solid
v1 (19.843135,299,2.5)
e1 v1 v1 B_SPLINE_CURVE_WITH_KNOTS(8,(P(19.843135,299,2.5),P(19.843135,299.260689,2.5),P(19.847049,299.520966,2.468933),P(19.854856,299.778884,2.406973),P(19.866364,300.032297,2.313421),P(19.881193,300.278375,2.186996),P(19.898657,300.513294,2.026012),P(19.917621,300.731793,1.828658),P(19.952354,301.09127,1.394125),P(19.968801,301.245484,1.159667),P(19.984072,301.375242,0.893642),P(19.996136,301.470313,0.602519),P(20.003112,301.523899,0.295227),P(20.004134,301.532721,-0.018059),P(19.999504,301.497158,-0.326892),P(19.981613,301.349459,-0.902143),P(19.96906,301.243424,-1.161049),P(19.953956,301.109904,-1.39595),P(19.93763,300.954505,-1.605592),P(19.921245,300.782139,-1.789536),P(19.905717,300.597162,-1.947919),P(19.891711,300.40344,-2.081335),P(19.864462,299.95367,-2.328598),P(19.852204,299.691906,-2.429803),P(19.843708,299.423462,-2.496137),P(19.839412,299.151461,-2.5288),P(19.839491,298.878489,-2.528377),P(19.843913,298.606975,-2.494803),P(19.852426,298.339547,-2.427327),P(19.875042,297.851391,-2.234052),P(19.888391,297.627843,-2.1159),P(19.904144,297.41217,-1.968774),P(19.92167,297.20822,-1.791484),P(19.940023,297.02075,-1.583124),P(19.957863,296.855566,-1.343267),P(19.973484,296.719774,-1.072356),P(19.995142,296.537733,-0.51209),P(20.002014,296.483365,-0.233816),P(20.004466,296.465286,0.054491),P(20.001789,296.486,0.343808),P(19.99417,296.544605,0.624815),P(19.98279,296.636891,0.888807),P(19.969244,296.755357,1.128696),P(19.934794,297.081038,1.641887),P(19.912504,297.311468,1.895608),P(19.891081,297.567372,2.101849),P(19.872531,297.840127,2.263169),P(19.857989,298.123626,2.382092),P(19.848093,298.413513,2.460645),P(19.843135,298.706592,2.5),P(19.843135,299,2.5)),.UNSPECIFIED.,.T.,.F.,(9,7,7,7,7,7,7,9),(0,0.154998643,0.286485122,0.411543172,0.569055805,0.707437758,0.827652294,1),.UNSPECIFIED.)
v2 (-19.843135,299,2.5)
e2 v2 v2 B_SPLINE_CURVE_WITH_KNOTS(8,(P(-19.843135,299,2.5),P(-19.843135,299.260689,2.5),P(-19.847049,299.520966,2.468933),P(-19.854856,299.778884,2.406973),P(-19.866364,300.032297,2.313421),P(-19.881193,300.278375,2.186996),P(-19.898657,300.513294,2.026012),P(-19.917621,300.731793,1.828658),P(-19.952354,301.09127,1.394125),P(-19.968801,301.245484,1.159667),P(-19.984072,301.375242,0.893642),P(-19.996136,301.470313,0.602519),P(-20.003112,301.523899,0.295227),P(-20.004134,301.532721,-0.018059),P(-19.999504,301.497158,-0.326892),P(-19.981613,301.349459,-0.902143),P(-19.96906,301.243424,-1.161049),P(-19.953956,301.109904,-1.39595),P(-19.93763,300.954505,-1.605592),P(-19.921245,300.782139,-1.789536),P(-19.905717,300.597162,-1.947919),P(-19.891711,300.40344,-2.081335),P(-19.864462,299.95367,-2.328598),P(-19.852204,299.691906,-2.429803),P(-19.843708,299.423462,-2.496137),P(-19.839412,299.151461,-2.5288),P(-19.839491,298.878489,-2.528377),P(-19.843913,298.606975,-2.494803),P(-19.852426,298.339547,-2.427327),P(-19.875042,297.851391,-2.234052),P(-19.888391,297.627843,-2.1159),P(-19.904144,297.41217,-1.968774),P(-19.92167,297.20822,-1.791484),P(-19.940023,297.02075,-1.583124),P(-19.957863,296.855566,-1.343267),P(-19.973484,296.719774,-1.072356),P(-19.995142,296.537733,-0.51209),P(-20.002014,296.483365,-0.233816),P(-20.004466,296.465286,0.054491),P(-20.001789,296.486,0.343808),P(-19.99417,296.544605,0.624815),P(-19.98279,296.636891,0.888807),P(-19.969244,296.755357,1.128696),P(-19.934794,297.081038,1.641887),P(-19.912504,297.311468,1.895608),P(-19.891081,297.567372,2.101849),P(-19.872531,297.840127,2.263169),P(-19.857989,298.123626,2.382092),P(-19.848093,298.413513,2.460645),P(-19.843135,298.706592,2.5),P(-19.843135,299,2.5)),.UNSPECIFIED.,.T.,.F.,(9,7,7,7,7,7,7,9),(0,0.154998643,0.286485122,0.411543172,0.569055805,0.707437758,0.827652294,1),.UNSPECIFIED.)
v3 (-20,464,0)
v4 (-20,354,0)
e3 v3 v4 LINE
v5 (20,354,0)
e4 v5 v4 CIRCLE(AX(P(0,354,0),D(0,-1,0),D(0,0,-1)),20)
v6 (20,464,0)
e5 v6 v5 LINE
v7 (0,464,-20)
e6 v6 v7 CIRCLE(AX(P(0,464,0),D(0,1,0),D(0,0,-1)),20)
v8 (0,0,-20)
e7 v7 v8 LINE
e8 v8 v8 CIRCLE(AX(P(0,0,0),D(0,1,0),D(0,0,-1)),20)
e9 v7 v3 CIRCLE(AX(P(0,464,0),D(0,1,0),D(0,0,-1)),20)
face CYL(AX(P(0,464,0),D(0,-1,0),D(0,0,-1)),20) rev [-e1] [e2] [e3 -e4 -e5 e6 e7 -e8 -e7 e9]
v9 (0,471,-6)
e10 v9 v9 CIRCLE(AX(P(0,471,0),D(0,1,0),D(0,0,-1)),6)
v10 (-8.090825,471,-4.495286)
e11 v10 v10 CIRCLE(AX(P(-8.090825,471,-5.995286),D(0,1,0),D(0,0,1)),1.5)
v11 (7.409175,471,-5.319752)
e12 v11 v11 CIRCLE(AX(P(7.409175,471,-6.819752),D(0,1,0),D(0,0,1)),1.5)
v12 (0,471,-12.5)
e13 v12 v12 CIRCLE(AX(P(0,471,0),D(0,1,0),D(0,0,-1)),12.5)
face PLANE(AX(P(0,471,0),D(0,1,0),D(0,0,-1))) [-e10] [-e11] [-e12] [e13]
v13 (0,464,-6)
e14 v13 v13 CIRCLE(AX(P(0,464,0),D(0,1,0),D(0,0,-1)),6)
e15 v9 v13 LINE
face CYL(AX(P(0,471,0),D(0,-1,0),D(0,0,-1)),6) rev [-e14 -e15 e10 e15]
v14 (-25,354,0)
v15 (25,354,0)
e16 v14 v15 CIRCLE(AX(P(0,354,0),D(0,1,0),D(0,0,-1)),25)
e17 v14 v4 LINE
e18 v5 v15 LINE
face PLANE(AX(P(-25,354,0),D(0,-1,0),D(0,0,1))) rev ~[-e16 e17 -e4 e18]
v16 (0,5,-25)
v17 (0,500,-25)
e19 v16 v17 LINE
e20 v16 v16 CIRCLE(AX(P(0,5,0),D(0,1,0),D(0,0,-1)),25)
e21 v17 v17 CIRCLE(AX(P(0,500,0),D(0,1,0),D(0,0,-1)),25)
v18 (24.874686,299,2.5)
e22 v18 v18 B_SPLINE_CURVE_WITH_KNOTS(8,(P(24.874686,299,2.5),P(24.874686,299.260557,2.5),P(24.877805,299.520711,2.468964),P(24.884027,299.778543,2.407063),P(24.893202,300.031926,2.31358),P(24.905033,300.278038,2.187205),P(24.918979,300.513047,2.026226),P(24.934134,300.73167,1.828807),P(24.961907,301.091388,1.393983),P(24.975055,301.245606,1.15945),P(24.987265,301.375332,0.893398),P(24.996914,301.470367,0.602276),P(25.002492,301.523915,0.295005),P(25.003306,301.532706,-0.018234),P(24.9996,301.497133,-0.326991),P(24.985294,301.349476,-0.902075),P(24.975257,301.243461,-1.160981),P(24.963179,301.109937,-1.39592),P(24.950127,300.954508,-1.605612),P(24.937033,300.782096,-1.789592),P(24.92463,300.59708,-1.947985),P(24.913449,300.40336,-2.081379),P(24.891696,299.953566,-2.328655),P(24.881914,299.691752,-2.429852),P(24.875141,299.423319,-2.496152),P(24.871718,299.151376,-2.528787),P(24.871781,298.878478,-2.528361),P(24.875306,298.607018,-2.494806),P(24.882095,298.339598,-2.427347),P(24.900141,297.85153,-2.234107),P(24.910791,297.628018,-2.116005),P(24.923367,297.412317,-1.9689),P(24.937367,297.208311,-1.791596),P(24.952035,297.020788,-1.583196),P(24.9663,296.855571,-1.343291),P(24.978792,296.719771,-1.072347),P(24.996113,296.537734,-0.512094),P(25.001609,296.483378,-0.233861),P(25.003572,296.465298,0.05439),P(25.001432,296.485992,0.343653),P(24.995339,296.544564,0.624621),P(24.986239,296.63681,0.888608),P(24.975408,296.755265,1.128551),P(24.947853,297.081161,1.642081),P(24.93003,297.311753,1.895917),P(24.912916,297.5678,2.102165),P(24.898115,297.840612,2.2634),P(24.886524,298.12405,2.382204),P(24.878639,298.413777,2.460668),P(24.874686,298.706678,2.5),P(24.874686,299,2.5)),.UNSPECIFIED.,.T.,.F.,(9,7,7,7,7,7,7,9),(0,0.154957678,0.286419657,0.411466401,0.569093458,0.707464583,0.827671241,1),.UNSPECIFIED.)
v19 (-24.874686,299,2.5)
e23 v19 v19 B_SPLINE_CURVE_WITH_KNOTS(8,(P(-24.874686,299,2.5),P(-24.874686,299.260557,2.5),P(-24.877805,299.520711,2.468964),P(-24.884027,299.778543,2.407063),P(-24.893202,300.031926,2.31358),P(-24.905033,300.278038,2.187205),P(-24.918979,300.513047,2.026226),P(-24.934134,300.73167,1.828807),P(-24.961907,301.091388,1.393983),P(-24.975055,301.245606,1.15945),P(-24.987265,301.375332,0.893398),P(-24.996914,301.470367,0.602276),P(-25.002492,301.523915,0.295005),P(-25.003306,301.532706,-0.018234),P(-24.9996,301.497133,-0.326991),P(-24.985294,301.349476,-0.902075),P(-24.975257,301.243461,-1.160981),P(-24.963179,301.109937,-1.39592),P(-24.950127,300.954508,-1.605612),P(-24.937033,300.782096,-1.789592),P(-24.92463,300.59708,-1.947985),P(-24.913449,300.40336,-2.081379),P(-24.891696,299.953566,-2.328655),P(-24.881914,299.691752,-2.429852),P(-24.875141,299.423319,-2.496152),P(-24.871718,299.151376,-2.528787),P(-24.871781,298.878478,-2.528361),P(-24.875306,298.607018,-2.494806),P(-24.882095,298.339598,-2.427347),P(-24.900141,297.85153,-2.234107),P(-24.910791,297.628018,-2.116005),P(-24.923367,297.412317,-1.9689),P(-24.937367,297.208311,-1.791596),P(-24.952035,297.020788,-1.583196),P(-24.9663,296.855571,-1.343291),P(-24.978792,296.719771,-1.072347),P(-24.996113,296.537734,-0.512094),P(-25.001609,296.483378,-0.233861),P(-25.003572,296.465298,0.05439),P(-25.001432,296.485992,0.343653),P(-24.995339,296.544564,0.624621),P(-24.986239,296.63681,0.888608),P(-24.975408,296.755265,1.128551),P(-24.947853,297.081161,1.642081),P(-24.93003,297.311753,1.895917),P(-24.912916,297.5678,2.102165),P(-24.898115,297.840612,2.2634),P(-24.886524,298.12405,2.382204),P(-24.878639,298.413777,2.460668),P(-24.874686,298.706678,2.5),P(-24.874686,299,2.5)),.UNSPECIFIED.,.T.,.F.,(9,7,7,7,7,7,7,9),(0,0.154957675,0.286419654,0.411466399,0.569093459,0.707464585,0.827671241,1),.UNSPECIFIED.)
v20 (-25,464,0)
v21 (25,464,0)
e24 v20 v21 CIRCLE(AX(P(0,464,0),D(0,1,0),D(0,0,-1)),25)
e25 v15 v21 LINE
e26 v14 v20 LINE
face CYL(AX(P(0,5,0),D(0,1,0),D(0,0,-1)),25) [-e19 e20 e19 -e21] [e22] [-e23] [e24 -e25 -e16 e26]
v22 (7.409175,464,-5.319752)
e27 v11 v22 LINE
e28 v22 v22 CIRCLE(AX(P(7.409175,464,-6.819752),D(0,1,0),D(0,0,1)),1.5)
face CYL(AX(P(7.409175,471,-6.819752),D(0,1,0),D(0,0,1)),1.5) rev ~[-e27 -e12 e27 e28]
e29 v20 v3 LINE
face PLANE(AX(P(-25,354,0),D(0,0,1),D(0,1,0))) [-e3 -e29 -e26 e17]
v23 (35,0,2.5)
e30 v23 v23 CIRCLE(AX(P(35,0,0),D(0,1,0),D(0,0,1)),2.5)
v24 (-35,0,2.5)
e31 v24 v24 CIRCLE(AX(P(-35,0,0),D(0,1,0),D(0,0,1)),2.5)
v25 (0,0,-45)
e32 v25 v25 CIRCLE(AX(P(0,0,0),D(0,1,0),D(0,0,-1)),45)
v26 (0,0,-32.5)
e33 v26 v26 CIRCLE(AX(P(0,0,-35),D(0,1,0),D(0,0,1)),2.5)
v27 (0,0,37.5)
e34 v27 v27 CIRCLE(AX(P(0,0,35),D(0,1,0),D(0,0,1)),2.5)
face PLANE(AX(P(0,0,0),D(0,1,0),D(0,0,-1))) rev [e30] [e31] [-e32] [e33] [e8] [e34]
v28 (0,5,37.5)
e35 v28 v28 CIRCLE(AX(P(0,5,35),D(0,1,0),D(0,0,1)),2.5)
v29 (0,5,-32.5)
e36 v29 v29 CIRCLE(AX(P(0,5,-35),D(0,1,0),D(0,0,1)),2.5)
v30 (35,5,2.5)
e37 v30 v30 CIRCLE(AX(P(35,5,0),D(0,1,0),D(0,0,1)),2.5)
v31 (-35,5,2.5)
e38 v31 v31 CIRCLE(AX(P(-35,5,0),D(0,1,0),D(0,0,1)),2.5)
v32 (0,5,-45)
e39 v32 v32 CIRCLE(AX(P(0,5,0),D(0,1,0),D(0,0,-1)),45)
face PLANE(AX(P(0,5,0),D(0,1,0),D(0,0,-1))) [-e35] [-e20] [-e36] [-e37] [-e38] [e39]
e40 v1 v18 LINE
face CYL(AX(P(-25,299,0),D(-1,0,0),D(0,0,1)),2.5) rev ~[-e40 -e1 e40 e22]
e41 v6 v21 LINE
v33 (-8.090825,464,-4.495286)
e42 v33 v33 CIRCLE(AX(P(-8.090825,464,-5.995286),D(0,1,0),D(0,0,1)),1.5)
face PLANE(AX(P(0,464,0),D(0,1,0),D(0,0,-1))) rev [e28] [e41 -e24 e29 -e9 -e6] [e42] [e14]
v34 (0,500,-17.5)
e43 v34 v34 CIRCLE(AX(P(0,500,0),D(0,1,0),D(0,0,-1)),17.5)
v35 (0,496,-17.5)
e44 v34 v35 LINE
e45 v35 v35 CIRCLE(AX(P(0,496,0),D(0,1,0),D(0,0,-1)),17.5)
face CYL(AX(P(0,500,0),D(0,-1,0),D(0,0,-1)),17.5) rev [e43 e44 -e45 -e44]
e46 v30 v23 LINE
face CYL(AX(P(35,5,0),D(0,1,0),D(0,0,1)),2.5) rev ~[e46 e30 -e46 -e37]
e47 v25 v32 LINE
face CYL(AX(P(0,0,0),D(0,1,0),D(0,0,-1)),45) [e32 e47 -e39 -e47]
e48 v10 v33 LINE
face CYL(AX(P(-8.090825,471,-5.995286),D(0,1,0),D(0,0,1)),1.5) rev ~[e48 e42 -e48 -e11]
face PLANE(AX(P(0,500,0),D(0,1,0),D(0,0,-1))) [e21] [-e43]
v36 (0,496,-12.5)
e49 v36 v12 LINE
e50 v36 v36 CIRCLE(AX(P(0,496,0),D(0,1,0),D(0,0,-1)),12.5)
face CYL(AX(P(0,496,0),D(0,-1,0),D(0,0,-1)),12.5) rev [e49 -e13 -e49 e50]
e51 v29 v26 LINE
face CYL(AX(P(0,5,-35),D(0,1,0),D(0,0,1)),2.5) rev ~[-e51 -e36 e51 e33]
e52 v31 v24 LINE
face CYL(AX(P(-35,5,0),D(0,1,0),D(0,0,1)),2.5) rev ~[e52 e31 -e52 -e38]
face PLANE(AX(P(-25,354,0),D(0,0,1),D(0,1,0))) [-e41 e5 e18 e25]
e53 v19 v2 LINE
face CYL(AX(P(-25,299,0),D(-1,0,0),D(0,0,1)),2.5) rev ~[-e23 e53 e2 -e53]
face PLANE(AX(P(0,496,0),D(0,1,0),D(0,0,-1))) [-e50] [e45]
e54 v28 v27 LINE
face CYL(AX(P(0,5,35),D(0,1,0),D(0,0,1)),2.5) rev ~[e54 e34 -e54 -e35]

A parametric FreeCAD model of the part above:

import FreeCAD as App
import Part
import Sketcher
Q = App.Units.Quantity

doc = App.newDocument("Part")
params = doc.addObject("Spreadsheet::Sheet", "Params")
for row, (alias, value) in enumerate([
    ("sketch1_width", "25 mm"),
    ("sketch1_width2", "20 mm"),
    ("sketch1_width3", "5 mm"),
    ("sketch1_width4", "14 mm"),
    ("sketch1_height", "495 mm"),
    ("revolution_angle", "360 deg"),
    ("sketch2_diameter", "5 mm"),
    ("sketch2_width", "110 mm"),
    ("sketch2_height", "30 mm"),
    ("sketch3_diameter", "3 mm"),
    ("sketch4_diameter", "5 mm"),
    ("sketch5_diameter", "5 mm"),
    ("sketch6_diameter", "5 mm"),
    ("sketch7_diameter", "5 mm"),
], start=1):
    params.set(f"A{row}", alias)
    params.set(f"B{row}", "=" + value)
    params.setAlias(f"B{row}", alias)

body = doc.addObject("PartDesign::Body", "Body")

# Sketch on XY plane
sketch1 = body.newObject("Sketcher::SketchObject", "Sketch")
sketch1.AttachmentSupport = (doc.getObject("XY_Plane"), [""])
sketch1.MapMode = "FlatFace"
sketch1.addGeometry([
    Part.LineSegment(App.Vector(20, 0, 0), App.Vector(45, 0, 0)),  # 0
    Part.LineSegment(App.Vector(45, 0, 0), App.Vector(45, 5, 0)),  # 1
    Part.LineSegment(App.Vector(45, 5, 0), App.Vector(25, 5, 0)),  # 2
    Part.LineSegment(App.Vector(25, 5, 0), App.Vector(25, 500, 0)),  # 3
    Part.LineSegment(App.Vector(25, 500, 0), App.Vector(17.5, 500, 0)),  # 4
    Part.LineSegment(App.Vector(17.5, 500, 0), App.Vector(17.5, 496, 0)),  # 5
    Part.LineSegment(App.Vector(17.5, 496, 0), App.Vector(12.5, 496, 0)),  # 6
    Part.LineSegment(App.Vector(12.5, 496, 0), App.Vector(12.5, 471, 0)),  # 7
    Part.LineSegment(App.Vector(12.5, 471, 0), App.Vector(6, 471, 0)),  # 8
    Part.LineSegment(App.Vector(6, 471, 0), App.Vector(6, 464, 0)),  # 9
    Part.LineSegment(App.Vector(6, 464, 0), App.Vector(20, 464, 0)),  # 10
    Part.LineSegment(App.Vector(20, 464, 0), App.Vector(20, 0, 0)),  # 11
], False)
sketch1.addConstraint([
    Sketcher.Constraint("Coincident", 0, 2, 1, 1),
    Sketcher.Constraint("Coincident", 1, 2, 2, 1),
    Sketcher.Constraint("Coincident", 2, 2, 3, 1),
    Sketcher.Constraint("Coincident", 3, 2, 4, 1),
    Sketcher.Constraint("Coincident", 4, 2, 5, 1),
    Sketcher.Constraint("Coincident", 5, 2, 6, 1),
    Sketcher.Constraint("Coincident", 6, 2, 7, 1),
    Sketcher.Constraint("Coincident", 7, 2, 8, 1),
    Sketcher.Constraint("Coincident", 8, 2, 9, 1),
    Sketcher.Constraint("Coincident", 9, 2, 10, 1),
    Sketcher.Constraint("Coincident", 10, 2, 11, 1),
    Sketcher.Constraint("Coincident", 11, 2, 0, 1),
    Sketcher.Constraint("Horizontal", 0),
    Sketcher.Constraint("Vertical", 1),
    Sketcher.Constraint("Horizontal", 2),
    Sketcher.Constraint("Vertical", 3),
    Sketcher.Constraint("Horizontal", 4),
    Sketcher.Constraint("Vertical", 5),
    Sketcher.Constraint("Horizontal", 6),
    Sketcher.Constraint("Vertical", 7),
    Sketcher.Constraint("Horizontal", 8),
    Sketcher.Constraint("Vertical", 9),
    Sketcher.Constraint("Horizontal", 10),
    Sketcher.Constraint("Vertical", 11),
    Sketcher.Constraint("PointOnObject", 0, 2, -1),
    Sketcher.Constraint("Equal", 6, 1),
    Sketcher.Constraint("Equal", 0, 7),
    Sketcher.Constraint("DistanceX", 0, 1, 0, 2, Q("25 mm")),
    Sketcher.Constraint("DistanceX", 2, 2, 2, 1, Q("20 mm")),
    Sketcher.Constraint("DistanceX", 6, 2, 6, 1, Q("5 mm")),
    Sketcher.Constraint("DistanceX", 10, 1, 10, 2, Q("14 mm")),
    Sketcher.Constraint("DistanceY", 3, 1, 3, 2, Q("495 mm")),
    Sketcher.Constraint("DistanceY", 5, 2, 5, 1, Q("4 mm")),
    Sketcher.Constraint("DistanceY", 9, 2, 9, 1, Q("7 mm")),
    Sketcher.Constraint("DistanceX", 4, 2, 4, 1, Q("7.5 mm")),
    Sketcher.Constraint("DistanceX", -1, 1, 0, 2, Q("45 mm")),
])
sketch1.setExpression("Constraints[27]", "Params.sketch1_width")
sketch1.setExpression("Constraints[28]", "Params.sketch1_width2")
sketch1.setExpression("Constraints[29]", "Params.sketch1_width3")
sketch1.setExpression("Constraints[30]", "Params.sketch1_width4")
sketch1.setExpression("Constraints[31]", "Params.sketch1_height")
revolution = body.newObject("PartDesign::Revolution", "Revolution")
revolution.Profile = sketch1
revolution.ReferenceAxis = (sketch1, ["V_Axis"])
revolution.setExpression("Angle", "Params.revolution_angle")

# Sketch on YZ plane
sketch2 = body.newObject("Sketcher::SketchObject", "Sketch001")
sketch2.AttachmentSupport = (doc.getObject("YZ_Plane"), [""])
sketch2.MapMode = "FlatFace"
sketch2.AttachmentOffset = App.Placement(App.Vector(0, 0, -25), App.Rotation())
sketch2.addGeometry([
    Part.Circle(App.Vector(299, 0, 0), App.Vector(0, 0, 1), 2.5),  # 0
    Part.LineSegment(App.Vector(464, 0, 0), App.Vector(354, 0, 0)),  # 1
    Part.LineSegment(App.Vector(354, 0, 0), App.Vector(354, 30, 0)),  # 2
    Part.LineSegment(App.Vector(354, 30, 0), App.Vector(464, 30, 0)),  # 3
    Part.LineSegment(App.Vector(464, 30, 0), App.Vector(464, 0, 0)),  # 4
], False)
sketch2.addConstraint([
    Sketcher.Constraint("Coincident", 1, 2, 2, 1),
    Sketcher.Constraint("Coincident", 2, 2, 3, 1),
    Sketcher.Constraint("Coincident", 3, 2, 4, 1),
    Sketcher.Constraint("Coincident", 4, 2, 1, 1),
    Sketcher.Constraint("Horizontal", 1),
    Sketcher.Constraint("Vertical", 2),
    Sketcher.Constraint("Horizontal", 3),
    Sketcher.Constraint("Vertical", 4),
    Sketcher.Constraint("PointOnObject", 0, 3, -1),
    Sketcher.Constraint("PointOnObject", 1, 2, -1),
    Sketcher.Constraint("Diameter", 0, Q("5 mm")),
    Sketcher.Constraint("DistanceX", 1, 2, 1, 1, Q("110 mm")),
    Sketcher.Constraint("DistanceY", 2, 1, 2, 2, Q("30 mm")),
    Sketcher.Constraint("DistanceX", -1, 1, 0, 3, Q("299 mm")),
    Sketcher.Constraint("DistanceX", -1, 1, 1, 2, Q("354 mm")),
])
sketch2.setExpression("Constraints[10]", "Params.sketch2_diameter")
sketch2.setExpression("Constraints[11]", "Params.sketch2_width")
sketch2.setExpression("Constraints[12]", "Params.sketch2_height")
pocket1 = body.newObject("PartDesign::Pocket", "Pocket")
pocket1.Profile = sketch2
pocket1.Type = "ThroughAll"
pocket1.Reversed = True

# Sketch on XZ plane
sketch3 = body.newObject("Sketcher::SketchObject", "Sketch002")
sketch3.AttachmentSupport = (doc.getObject("XZ_Plane"), [""])
sketch3.MapMode = "FlatFace"
sketch3.AttachmentOffset = App.Placement(App.Vector(0, 0, -471), App.Rotation())
sketch3.addGeometry([
    Part.Circle(App.Vector(-8.1, -6, 0), App.Vector(0, 0, 1), 1.5),
    Part.Circle(App.Vector(7.4, -6.8, 0), App.Vector(0, 0, 1), 1.5),
], False)
sketch3.addConstraint([
    Sketcher.Constraint("Equal", 0, 1),
    Sketcher.Constraint("Diameter", 0, Q("3 mm")),
    Sketcher.Constraint("DistanceX", 0, 3, 1, 3, Q("15.5 mm")),
    Sketcher.Constraint("DistanceX", 0, 3, -1, 1, Q("8.090825 mm")),
    Sketcher.Constraint("DistanceY", 0, 3, -1, 1, Q("5.995286 mm")),
    Sketcher.Constraint("DistanceY", 1, 3, -1, 1, Q("6.819752 mm")),
])
sketch3.setExpression("Constraints[1]", "Params.sketch3_diameter")
pocket2 = body.newObject("PartDesign::Pocket", "Pocket001")
pocket2.Profile = sketch3
pocket2.Type = "ThroughAll"
pocket2.Reversed = True

# Sketch on XZ plane
sketch4 = body.newObject("Sketcher::SketchObject", "Sketch003")
sketch4.AttachmentSupport = (doc.getObject("XZ_Plane"), [""])
sketch4.MapMode = "FlatFace"
sketch4.AttachmentOffset = App.Placement(App.Vector(0, 0, -5), App.Rotation())
sketch4.addGeometry(Part.Circle(App.Vector(0, -35, 0), App.Vector(0, 0, 1), 2.5), False)
sketch4.addConstraint([
    Sketcher.Constraint("PointOnObject", 0, 3, -2),
    Sketcher.Constraint("Diameter", 0, Q("5 mm")),
    Sketcher.Constraint("DistanceY", 0, 3, -1, 1, Q("35 mm")),
])
sketch4.setExpression("Constraints[1]", "Params.sketch4_diameter")
pocket3 = body.newObject("PartDesign::Pocket", "Pocket002")
pocket3.Profile = sketch4
pocket3.Type = "UpToFirst"
pocket3.Reversed = True

# Sketch on XZ plane
sketch5 = body.newObject("Sketcher::SketchObject", "Sketch004")
sketch5.AttachmentSupport = (doc.getObject("XZ_Plane"), [""])
sketch5.MapMode = "FlatFace"
sketch5.AttachmentOffset = App.Placement(App.Vector(0, 0, -5), App.Rotation())
sketch5.addGeometry(Part.Circle(App.Vector(35, 0, 0), App.Vector(0, 0, 1), 2.5), False)
sketch5.addConstraint([
    Sketcher.Constraint("PointOnObject", 0, 3, -1),
    Sketcher.Constraint("Diameter", 0, Q("5 mm")),
    Sketcher.Constraint("DistanceX", -1, 1, 0, 3, Q("35 mm")),
])
sketch5.setExpression("Constraints[1]", "Params.sketch5_diameter")
pocket4 = body.newObject("PartDesign::Pocket", "Pocket003")
pocket4.Profile = sketch5
pocket4.Type = "UpToFirst"
pocket4.Reversed = True

# Sketch on XZ plane
sketch6 = body.newObject("Sketcher::SketchObject", "Sketch005")
sketch6.AttachmentSupport = (doc.getObject("XZ_Plane"), [""])
sketch6.MapMode = "FlatFace"
sketch6.AttachmentOffset = App.Placement(App.Vector(0, 0, -5), App.Rotation())
sketch6.addGeometry(Part.Circle(App.Vector(0, 35, 0), App.Vector(0, 0, 1), 2.5), False)
sketch6.addConstraint([
    Sketcher.Constraint("PointOnObject", 0, 3, -2),
    Sketcher.Constraint("Diameter", 0, Q("5 mm")),
    Sketcher.Constraint("DistanceY", -1, 1, 0, 3, Q("35 mm")),
])
sketch6.setExpression("Constraints[1]", "Params.sketch6_diameter")
pocket5 = body.newObject("PartDesign::Pocket", "Pocket004")
pocket5.Profile = sketch6
pocket5.Type = "UpToFirst"
pocket5.Reversed = True

# Sketch on XZ plane
sketch7 = body.newObject("Sketcher::SketchObject", "Sketch006")
sketch7.AttachmentSupport = (doc.getObject("XZ_Plane"), [""])
sketch7.MapMode = "FlatFace"
sketch7.AttachmentOffset = App.Placement(App.Vector(0, 0, -5), App.Rotation())
sketch7.addGeometry(Part.Circle(App.Vector(-35, 0, 0), App.Vector(0, 0, 1), 2.5), False)
sketch7.addConstraint([
    Sketcher.Constraint("PointOnObject", 0, 3, -1),
    Sketcher.Constraint("Diameter", 0, Q("5 mm")),
    Sketcher.Constraint("DistanceX", 0, 3, -1, 1, Q("35 mm")),
])
sketch7.setExpression("Constraints[1]", "Params.sketch7_diameter")
pocket6 = body.newObject("PartDesign::Pocket", "Pocket005")
pocket6.Profile = sketch7
pocket6.Type = "UpToFirst"
pocket6.Reversed = True

doc.recompute()
